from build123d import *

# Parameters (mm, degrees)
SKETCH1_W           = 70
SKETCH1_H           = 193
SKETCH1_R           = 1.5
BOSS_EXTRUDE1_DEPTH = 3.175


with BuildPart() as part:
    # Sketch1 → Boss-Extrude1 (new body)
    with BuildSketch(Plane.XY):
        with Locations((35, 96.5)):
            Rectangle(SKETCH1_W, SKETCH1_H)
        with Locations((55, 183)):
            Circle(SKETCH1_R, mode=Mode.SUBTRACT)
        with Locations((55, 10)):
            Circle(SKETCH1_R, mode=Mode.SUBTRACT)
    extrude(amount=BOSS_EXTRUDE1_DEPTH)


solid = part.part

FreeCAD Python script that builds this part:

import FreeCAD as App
import Part
import Sketcher


def add_polygon(sketch, points):
    """Adds a closed chain of lines whose ends are joined by coincident constraints."""
    first, n = sketch.GeometryCount, len(points)
    for a, b in zip(points, points[1:] + points[:1]):
        sketch.addGeometry(Part.LineSegment(App.Vector(*a, 0), App.Vector(*b, 0)), False)
    for i in range(n):
        sketch.addConstraint(Sketcher.Constraint("Coincident", first + i, 2, first + (i + 1) % n, 1))

doc = App.newDocument("Part")
body = doc.addObject("PartDesign::Body", "Body")

# Sketch on XY plane
sketch1 = doc.addObject("Sketcher::SketchObject", "Sketch")
body.addObject(sketch1)
sketch1.AttachmentSupport = (doc.XY_Plane, [""])
sketch1.MapMode = "FlatFace"
add_polygon(sketch1, [(0, 193), (0, 0), (70, 0), (70, 193)])  # lines 0-3
sketch1.addGeometry(Part.Circle(App.Vector(55, 10, 0), App.Vector(0, 0, 1), 1.5), False)  # 4
sketch1.addGeometry(Part.Circle(App.Vector(55, 183, 0), App.Vector(0, 0, 1), 1.5), False)  # 5
sketch1.addConstraint([
    Sketcher.Constraint("Vertical", 0),
    Sketcher.Constraint("Horizontal", 1),
    Sketcher.Constraint("Vertical", 2),
    Sketcher.Constraint("Horizontal", 3),
    Sketcher.Constraint("Coincident", 0, 2, -1, 1),
    Sketcher.Constraint("Equal", 4, 5),
    Sketcher.Constraint("Vertical", 4, 3, 5, 3),
    Sketcher.Constraint("Diameter", 4, 3.0),
    Sketcher.Constraint("DistanceX", 1, 1, 1, 2, 70.0),
    Sketcher.Constraint("DistanceY", 0, 2, 0, 1, 193.0),
    Sketcher.Constraint("DistanceX", -1, 1, 4, 3, 55.0),
    Sketcher.Constraint("DistanceY", -1, 1, 4, 3, 10.0),
    Sketcher.Constraint("DistanceY", -1, 1, 5, 3, 183.0),
])
pad1 = doc.addObject("PartDesign::Pad", "Pad")
body.addObject(pad1)
pad1.Profile = sketch1
pad1.Length = 3.175

doc.recompute()
